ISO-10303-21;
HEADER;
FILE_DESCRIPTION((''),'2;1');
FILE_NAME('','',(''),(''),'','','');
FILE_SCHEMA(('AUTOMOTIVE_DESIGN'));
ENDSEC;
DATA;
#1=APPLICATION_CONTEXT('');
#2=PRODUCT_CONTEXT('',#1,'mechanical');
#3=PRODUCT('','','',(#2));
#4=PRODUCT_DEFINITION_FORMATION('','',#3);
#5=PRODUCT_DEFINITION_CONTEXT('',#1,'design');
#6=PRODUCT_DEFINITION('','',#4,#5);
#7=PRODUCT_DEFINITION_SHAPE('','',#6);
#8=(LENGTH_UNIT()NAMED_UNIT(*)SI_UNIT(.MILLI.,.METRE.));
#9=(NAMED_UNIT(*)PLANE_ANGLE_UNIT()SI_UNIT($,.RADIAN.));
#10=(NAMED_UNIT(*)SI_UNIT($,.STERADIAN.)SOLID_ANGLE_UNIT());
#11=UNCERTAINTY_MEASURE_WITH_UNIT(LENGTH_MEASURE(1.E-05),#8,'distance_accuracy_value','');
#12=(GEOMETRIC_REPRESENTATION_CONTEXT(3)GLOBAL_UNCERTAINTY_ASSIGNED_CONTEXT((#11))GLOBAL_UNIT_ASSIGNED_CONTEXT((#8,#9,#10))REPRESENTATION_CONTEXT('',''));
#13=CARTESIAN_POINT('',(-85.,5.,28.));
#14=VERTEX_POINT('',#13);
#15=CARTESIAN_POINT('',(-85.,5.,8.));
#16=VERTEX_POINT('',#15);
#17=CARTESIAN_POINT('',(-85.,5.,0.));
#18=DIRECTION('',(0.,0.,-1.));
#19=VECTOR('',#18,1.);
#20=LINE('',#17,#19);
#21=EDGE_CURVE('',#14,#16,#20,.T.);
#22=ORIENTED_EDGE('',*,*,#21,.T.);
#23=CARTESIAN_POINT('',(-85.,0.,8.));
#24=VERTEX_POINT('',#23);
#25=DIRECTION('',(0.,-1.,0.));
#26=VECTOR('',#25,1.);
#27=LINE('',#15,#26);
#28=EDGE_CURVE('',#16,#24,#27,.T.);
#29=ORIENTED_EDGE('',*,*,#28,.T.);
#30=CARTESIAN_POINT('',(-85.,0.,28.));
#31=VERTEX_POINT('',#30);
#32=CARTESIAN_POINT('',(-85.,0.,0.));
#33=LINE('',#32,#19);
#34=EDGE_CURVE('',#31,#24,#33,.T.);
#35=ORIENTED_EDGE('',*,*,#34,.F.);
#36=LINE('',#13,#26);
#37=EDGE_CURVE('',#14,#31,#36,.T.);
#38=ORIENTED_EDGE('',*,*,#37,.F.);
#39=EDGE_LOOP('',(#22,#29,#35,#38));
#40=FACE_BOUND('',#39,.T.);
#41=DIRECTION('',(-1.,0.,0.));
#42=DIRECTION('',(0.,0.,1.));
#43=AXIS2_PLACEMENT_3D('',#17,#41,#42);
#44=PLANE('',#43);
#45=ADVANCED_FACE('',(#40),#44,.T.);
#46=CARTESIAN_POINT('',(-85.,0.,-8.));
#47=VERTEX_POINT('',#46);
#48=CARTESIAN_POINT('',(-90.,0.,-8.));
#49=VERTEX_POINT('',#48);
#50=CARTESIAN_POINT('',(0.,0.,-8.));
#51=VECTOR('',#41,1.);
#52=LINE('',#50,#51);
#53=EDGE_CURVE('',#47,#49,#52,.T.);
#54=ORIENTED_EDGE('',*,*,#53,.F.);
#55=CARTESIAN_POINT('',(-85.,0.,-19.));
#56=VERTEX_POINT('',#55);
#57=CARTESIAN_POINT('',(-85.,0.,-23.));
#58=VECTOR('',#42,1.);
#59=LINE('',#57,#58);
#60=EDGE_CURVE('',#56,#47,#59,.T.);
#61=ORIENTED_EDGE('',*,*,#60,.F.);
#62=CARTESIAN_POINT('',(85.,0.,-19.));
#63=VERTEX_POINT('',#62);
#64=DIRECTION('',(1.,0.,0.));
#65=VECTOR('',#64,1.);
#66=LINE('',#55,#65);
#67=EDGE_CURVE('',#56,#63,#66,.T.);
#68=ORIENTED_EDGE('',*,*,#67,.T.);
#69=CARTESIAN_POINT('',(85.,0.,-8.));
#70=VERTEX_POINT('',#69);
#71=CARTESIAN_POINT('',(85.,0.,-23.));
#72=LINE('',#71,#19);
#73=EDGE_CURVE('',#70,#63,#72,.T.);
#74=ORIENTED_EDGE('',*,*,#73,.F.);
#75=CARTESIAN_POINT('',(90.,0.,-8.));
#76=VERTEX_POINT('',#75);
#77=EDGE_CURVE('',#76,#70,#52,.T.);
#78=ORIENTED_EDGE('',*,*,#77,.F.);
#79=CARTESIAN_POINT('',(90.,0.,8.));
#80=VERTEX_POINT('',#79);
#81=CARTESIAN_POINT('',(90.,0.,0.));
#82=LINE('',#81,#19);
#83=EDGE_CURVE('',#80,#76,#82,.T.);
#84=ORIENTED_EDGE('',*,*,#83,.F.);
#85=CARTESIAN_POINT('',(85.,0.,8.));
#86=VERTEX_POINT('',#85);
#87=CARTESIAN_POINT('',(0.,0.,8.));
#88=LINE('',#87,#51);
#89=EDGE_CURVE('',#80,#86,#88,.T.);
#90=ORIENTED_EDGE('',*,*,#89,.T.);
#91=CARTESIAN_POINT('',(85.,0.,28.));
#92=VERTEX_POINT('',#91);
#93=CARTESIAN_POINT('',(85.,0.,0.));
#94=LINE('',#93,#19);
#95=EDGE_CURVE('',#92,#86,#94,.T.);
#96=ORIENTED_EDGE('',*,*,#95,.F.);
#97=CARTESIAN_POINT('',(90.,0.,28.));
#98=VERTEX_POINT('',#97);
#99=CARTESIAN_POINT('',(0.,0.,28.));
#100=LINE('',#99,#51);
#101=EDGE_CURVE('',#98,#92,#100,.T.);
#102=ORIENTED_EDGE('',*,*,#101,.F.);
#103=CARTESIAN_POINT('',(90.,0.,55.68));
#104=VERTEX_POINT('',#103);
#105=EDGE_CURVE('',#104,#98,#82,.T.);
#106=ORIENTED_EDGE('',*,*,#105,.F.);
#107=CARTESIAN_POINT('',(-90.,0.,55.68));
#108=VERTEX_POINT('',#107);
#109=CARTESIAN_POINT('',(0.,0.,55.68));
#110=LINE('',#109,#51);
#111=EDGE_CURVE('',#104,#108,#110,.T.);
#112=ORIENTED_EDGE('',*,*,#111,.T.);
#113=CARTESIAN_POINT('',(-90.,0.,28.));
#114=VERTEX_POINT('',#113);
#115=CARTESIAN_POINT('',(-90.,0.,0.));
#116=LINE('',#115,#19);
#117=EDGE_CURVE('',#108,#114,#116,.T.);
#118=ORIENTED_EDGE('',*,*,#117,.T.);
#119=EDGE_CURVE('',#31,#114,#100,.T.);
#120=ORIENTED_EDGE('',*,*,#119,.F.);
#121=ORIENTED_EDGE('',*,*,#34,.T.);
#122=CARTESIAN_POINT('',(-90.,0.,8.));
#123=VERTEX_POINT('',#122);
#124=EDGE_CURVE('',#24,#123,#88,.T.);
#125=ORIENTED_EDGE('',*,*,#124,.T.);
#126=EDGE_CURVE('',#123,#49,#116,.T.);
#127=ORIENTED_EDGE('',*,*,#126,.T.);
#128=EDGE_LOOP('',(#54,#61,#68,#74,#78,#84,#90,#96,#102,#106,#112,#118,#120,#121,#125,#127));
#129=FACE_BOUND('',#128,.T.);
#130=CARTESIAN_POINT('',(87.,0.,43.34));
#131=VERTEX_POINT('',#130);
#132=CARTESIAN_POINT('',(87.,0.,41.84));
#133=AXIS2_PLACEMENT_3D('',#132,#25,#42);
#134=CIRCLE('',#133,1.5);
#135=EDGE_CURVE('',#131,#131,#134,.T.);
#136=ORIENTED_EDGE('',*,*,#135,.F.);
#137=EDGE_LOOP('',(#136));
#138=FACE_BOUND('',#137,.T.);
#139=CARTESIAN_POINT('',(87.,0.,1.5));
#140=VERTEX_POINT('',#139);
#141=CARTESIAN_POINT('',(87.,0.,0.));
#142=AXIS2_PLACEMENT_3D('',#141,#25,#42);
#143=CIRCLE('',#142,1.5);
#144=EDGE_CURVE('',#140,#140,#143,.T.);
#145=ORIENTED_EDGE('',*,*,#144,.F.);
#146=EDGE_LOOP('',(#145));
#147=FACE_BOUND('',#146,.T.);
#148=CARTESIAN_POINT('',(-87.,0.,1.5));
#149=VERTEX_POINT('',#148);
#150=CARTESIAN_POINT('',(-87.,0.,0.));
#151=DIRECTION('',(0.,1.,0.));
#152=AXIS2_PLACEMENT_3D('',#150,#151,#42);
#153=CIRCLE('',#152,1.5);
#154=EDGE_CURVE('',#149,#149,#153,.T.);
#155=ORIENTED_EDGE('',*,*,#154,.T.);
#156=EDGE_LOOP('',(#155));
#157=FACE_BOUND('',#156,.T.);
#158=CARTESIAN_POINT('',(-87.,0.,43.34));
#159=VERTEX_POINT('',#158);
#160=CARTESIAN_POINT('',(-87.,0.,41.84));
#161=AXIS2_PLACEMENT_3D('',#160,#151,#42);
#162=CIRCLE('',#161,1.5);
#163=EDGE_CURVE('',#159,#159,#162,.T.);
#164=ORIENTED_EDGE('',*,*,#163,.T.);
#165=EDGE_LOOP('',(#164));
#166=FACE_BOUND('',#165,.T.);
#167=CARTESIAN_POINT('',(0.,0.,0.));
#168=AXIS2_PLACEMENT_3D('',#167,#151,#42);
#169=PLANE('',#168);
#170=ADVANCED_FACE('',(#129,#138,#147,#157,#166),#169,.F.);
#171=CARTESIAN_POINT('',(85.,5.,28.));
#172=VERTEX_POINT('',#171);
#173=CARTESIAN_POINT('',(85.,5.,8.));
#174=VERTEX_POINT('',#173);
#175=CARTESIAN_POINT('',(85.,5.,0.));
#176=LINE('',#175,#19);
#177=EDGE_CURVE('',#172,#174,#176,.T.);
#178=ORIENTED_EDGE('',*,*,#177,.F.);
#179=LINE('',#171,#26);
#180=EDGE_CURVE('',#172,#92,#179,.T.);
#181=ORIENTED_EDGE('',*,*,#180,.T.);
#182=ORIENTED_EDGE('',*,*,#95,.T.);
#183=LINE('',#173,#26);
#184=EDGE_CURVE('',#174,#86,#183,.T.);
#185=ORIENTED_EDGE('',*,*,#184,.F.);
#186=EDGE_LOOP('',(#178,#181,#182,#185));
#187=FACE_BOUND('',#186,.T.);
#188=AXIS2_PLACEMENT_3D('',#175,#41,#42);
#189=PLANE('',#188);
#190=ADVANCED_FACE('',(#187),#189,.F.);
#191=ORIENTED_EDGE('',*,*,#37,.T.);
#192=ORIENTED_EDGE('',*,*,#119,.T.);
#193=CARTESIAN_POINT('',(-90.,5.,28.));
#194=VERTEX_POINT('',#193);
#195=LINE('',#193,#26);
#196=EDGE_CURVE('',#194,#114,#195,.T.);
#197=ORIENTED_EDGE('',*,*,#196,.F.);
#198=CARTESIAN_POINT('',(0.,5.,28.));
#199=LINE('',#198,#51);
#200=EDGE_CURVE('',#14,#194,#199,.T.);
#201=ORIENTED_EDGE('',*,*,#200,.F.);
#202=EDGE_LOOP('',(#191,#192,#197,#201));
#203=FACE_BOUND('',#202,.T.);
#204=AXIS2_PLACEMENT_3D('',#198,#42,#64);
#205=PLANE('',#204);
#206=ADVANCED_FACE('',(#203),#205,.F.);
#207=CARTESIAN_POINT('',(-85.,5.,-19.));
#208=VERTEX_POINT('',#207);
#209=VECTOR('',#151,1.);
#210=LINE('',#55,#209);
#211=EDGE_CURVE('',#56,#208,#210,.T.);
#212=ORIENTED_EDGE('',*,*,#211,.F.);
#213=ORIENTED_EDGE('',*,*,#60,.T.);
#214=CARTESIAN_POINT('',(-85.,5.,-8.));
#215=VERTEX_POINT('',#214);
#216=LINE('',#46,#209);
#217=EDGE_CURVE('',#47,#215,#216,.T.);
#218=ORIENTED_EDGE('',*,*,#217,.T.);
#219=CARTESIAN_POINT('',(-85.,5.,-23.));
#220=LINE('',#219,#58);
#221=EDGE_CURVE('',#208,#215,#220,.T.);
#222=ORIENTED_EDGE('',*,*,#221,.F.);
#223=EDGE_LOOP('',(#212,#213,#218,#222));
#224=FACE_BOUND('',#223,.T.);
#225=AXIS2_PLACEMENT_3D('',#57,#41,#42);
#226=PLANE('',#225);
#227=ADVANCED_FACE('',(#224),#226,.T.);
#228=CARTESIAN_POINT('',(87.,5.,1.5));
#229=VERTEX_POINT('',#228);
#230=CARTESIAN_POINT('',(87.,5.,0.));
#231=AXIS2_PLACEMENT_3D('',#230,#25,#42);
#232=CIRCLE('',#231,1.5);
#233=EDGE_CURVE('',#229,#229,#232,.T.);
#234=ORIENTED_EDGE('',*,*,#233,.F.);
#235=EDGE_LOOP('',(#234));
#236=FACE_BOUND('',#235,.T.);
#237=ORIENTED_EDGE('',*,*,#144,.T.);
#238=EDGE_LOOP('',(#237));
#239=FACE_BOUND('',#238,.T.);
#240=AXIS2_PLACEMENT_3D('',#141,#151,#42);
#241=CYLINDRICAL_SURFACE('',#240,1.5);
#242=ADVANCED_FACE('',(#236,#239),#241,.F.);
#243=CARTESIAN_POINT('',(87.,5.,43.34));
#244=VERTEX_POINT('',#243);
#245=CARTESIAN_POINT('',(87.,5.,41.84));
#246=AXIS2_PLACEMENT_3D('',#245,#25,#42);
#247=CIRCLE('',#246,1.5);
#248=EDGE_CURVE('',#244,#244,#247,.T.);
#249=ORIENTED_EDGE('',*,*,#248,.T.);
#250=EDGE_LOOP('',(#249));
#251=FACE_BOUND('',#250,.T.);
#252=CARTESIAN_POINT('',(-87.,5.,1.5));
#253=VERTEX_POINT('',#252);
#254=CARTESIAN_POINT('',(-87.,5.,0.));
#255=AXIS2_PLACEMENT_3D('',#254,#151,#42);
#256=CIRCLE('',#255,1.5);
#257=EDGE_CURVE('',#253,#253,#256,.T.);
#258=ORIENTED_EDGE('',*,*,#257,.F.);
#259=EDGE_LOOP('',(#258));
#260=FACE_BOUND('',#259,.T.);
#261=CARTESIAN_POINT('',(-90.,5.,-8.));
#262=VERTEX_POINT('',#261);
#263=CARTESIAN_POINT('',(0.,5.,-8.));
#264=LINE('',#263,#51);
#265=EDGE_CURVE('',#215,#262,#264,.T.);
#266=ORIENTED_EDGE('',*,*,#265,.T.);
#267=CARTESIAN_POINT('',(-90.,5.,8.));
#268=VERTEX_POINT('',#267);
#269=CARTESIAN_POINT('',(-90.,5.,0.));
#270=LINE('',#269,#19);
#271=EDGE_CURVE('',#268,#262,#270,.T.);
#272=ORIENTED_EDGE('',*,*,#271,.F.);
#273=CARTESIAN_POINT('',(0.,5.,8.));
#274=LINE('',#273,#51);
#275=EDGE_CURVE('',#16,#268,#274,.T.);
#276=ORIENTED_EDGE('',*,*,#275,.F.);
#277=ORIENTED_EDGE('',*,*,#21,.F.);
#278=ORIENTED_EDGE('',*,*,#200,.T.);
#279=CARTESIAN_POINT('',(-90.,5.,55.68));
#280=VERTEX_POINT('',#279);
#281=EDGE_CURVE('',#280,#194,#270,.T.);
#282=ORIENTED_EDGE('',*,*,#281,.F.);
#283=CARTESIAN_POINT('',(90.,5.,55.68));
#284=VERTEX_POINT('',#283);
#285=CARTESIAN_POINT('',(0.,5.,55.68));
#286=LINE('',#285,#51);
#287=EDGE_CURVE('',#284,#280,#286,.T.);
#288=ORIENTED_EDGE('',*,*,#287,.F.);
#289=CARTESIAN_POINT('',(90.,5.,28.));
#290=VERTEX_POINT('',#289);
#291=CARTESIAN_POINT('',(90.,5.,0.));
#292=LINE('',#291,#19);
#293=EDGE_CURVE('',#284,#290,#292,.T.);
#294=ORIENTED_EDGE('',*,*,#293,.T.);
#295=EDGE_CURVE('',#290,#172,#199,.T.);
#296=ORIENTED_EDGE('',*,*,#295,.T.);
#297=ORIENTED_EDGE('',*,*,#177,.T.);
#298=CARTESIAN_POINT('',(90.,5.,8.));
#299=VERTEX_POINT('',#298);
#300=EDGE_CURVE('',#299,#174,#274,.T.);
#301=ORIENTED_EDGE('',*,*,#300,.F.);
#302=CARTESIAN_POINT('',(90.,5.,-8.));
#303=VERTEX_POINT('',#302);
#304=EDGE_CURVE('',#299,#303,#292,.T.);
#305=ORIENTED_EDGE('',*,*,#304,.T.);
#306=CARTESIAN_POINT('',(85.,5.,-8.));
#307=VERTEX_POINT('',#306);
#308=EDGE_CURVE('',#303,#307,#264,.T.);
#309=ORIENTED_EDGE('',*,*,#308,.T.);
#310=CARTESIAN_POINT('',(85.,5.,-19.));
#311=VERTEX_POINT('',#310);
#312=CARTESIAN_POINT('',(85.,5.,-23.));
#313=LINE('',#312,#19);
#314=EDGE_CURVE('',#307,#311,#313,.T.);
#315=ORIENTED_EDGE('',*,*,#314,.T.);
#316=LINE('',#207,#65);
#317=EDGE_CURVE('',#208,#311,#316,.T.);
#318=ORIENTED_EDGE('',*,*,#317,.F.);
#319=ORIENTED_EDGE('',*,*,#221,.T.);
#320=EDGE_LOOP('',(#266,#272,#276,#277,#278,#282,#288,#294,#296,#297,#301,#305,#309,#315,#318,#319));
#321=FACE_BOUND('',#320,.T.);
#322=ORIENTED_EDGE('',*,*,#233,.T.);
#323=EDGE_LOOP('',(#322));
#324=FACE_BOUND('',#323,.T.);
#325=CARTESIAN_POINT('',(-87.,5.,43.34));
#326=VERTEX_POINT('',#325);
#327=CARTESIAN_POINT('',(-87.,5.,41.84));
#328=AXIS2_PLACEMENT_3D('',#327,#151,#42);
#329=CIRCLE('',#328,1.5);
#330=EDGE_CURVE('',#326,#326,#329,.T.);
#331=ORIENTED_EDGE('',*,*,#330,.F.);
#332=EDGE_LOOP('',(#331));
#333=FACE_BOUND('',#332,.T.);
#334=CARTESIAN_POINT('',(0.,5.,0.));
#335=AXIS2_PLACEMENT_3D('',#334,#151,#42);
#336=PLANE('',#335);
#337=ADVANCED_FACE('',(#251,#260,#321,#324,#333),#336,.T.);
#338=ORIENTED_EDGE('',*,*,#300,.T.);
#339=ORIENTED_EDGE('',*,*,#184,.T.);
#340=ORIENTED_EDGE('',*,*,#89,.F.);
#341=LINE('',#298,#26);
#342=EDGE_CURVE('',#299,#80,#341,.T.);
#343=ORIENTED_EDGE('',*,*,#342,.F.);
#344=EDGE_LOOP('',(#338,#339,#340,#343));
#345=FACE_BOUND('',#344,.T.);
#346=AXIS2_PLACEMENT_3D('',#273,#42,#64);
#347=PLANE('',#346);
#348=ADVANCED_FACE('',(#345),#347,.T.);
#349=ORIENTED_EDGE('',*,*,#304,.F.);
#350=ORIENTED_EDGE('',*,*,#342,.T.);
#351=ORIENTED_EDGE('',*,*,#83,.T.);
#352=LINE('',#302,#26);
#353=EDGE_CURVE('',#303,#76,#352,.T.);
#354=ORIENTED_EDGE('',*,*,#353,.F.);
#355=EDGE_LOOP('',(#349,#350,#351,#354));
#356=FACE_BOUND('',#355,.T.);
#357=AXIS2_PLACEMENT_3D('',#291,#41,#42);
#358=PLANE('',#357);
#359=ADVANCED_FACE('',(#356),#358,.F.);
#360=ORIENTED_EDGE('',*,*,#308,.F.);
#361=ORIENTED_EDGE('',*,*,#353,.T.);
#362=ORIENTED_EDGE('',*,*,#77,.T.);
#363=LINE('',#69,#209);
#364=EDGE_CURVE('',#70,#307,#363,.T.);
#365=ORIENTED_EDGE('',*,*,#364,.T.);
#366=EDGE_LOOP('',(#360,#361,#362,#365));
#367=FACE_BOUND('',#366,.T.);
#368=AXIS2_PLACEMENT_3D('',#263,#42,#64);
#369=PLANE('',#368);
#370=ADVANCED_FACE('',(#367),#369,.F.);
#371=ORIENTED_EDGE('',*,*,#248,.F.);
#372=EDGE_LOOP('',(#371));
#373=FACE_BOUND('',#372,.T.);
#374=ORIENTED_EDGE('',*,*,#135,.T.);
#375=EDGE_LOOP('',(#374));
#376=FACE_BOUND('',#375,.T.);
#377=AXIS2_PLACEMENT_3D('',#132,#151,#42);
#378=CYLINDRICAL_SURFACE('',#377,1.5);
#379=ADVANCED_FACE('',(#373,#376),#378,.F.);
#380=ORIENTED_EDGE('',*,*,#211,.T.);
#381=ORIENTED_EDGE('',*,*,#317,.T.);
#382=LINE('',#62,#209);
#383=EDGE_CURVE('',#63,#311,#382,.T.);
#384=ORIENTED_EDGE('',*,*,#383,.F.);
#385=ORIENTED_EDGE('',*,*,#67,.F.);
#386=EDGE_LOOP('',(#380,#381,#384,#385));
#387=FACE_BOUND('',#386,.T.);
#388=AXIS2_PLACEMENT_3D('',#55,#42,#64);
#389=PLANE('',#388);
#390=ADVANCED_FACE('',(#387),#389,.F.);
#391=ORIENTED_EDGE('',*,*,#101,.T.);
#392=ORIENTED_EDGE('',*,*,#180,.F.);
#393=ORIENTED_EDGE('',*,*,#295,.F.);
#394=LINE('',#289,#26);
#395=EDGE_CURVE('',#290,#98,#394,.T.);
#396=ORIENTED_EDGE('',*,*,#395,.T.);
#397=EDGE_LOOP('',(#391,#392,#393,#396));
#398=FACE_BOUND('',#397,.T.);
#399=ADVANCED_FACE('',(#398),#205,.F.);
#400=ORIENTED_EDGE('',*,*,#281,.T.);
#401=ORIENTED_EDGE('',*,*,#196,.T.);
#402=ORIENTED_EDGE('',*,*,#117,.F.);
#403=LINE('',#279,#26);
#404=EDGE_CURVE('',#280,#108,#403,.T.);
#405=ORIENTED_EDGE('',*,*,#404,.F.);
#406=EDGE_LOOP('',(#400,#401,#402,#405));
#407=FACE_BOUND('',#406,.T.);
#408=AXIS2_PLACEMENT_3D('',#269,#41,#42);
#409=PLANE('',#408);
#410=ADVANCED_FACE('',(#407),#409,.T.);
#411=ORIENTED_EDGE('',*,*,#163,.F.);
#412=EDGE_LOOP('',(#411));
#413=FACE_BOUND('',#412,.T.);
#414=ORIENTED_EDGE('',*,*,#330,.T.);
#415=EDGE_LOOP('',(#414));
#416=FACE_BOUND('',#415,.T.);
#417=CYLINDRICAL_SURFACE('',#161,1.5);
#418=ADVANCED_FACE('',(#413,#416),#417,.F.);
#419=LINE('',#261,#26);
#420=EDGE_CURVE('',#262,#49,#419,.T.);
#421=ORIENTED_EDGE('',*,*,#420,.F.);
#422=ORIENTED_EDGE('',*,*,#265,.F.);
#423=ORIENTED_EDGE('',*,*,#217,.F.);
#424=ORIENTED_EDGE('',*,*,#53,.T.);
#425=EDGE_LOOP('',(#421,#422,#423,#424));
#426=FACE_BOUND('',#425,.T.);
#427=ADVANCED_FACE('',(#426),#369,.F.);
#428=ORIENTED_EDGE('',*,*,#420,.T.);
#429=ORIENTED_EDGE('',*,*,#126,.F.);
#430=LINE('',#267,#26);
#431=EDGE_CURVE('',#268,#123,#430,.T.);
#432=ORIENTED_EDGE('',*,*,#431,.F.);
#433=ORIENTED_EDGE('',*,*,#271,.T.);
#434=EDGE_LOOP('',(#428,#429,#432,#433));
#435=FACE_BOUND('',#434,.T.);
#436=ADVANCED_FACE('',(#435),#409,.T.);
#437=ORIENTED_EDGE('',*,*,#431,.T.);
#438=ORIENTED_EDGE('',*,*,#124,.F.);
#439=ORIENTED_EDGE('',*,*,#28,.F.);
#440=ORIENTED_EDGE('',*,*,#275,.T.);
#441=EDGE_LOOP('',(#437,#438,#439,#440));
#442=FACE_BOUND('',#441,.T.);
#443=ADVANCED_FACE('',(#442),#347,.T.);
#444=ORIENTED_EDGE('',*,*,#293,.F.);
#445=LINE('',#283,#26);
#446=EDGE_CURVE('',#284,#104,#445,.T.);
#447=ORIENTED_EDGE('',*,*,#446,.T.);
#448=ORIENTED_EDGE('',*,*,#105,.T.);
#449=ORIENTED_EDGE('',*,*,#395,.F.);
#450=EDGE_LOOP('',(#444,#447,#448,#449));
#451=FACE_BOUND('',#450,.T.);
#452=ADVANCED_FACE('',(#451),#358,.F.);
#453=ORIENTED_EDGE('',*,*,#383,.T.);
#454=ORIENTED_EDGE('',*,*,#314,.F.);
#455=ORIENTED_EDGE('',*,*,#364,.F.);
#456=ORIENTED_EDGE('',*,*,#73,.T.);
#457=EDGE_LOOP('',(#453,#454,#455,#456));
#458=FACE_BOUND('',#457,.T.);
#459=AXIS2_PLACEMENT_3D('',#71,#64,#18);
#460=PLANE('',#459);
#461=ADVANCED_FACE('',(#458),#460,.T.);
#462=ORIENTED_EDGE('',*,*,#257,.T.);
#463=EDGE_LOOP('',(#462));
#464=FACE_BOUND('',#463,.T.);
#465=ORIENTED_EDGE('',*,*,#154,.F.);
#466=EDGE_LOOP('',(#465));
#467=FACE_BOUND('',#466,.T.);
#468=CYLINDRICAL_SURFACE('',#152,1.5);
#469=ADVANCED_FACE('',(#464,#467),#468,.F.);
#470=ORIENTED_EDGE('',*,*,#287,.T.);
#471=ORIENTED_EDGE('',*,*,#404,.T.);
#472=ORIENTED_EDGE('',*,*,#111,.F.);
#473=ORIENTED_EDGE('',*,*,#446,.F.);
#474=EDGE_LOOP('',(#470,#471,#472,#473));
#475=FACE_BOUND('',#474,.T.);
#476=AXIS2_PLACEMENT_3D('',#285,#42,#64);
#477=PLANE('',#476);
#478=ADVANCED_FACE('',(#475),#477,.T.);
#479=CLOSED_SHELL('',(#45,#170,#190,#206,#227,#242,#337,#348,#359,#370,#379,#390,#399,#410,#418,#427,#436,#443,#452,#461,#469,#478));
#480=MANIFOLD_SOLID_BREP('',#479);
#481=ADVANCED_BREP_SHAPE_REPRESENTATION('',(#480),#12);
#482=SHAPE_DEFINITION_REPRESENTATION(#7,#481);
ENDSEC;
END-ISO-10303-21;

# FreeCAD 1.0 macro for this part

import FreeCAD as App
import Part
import Sketcher
Q = App.Units.Quantity


def add_polygon(sketch, points):
    """Adds a closed chain of lines whose ends are joined by coincident constraints."""
    first, n = sketch.GeometryCount, len(points)
    for a, b in zip(points, points[1:] + points[:1]):
        sketch.addGeometry(Part.LineSegment(App.Vector(*a, 0), App.Vector(*b, 0)), False)
    for i in range(n):
        sketch.addConstraint(Sketcher.Constraint("Coincident", first + i, 2, first + (i + 1) % n, 1))

doc = App.newDocument("Part")
body = doc.addObject("PartDesign::Body", "Body")

# Sketch on XZ plane
sketch1 = body.newObject("Sketcher::SketchObject", "Sketch")
sketch1.AttachmentSupport = (doc.getObject("XZ_Plane"), [""])
sketch1.MapMode = "FlatFace"
add_polygon(sketch1, [(90, 28), (85, 28), (85, 8), (90, 8), (90, -8), (-90, -8), (-90, 8), (-85, 8), (-85, 28), (-90, 28), (-90, 55.68), (90, 55.68)])  # lines 0-11
sketch1.addConstraint([
    Sketcher.Constraint("Horizontal", 0),
    Sketcher.Constraint("Vertical", 1),
    Sketcher.Constraint("Horizontal", 2),
    Sketcher.Constraint("Vertical", 3),
    Sketcher.Constraint("Horizontal", 4),
    Sketcher.Constraint("Vertical", 5),
    Sketcher.Constraint("Horizontal", 6),
    Sketcher.Constraint("Vertical", 7),
    Sketcher.Constraint("Horizontal", 8),
    Sketcher.Constraint("Vertical", 9),
    Sketcher.Constraint("Horizontal", 10),
    Sketcher.Constraint("Vertical", 11),
    Sketcher.Constraint("Symmetric", 2, 2, 4, 2, -1, 1),
    Sketcher.Constraint("Symmetric", 1, 2, 6, 2, -2),
    Sketcher.Constraint("Symmetric", 8, 2, 11, 2, -2),
    Sketcher.Constraint("Vertical", 5, 2, 8, 2),
    Sketcher.Constraint("DistanceX", 0, 2, 0, 1, Q("5 mm")),
    Sketcher.Constraint("DistanceX", 4, 2, 4, 1, Q("180 mm")),
    Sketcher.Constraint("DistanceY", 1, 2, 1, 1, Q("20 mm")),
    Sketcher.Constraint("DistanceY", 3, 2, 3, 1, Q("16 mm")),
    Sketcher.Constraint("DistanceY", 9, 1, 9, 2, Q("27.68 mm")),
])
pad1 = body.newObject("PartDesign::Pad", "Pad")
pad1.Profile = sketch1
pad1.Length = 5
pad1.Reversed = True

# Sketch on XZ plane
sketch2 = body.newObject("Sketcher::SketchObject", "Sketch001")
sketch2.AttachmentSupport = (doc.getObject("XZ_Plane"), [""])
sketch2.MapMode = "FlatFace"
sketch2.AttachmentOffset = App.Placement(App.Vector(0, 0, -5), App.Rotation())
sketch2.addGeometry([
    Part.Circle(App.Vector(-87, 0, 0), App.Vector(0, 0, 1), 1.5),
    Part.Circle(App.Vector(-87, 41.84, 0), App.Vector(0, 0, 1), 1.5),
], False)
sketch2.addConstraint([
    Sketcher.Constraint("Equal", 0, 1),
    Sketcher.Constraint("PointOnObject", 0, 3, -1),
    Sketcher.Constraint("Vertical", 0, 3, 1, 3),
    Sketcher.Constraint("Diameter", 0, Q("3 mm")),
    Sketcher.Constraint("DistanceX", 0, 3, -1, 1, Q("87 mm")),
    Sketcher.Constraint("DistanceY", -1, 1, 1, 3, Q("41.84 mm")),
])
pocket1 = body.newObject("PartDesign::Pocket", "Pocket")
pocket1.Profile = sketch2
pocket1.Type = "ThroughAll"
pocket1.Reversed = True
doc.recompute()

mirrored = body.newObject("PartDesign::Mirrored", "Mirrored")
mirrored.Originals = [pocket1]
mirrored.MirrorPlane = (doc.getObject("YZ_Plane"), [""])
body.Tip = mirrored

# Sketch on XZ plane
sketch3 = body.newObject("Sketcher::SketchObject", "Sketch002")
sketch3.AttachmentSupport = (doc.getObject("XZ_Plane"), [""])
sketch3.MapMode = "FlatFace"
sketch3.AttachmentOffset = App.Placement(App.Vector(0, 0, -5), App.Rotation())
add_polygon(sketch3, [(-85, -23), (-85, -8), (85, -8), (85, -23)])  # lines 0-3
sketch3.addConstraint([
    Sketcher.Constraint("Vertical", 0),
    Sketcher.Constraint("Horizontal", 1),
    Sketcher.Constraint("Vertical", 2),
    Sketcher.Constraint("Horizontal", 3),
    Sketcher.Constraint("DistanceX", 1, 1, 1, 2, Q("170 mm")),
    Sketcher.Constraint("DistanceY", 0, 1, 0, 2, Q("15 mm")),
    Sketcher.Constraint("DistanceX", 0, 2, -1, 1, Q("85 mm")),
    Sketcher.Constraint("DistanceY", 0, 2, -1, 1, Q("8 mm")),
])
pad2 = body.newObject("PartDesign::Pad", "Pad001")
pad2.Profile = sketch3
pad2.Length = 5

# Sketch on XZ plane
sketch4 = body.newObject("Sketcher::SketchObject", "Sketch003")
sketch4.AttachmentSupport = (doc.getObject("XZ_Plane"), [""])
sketch4.MapMode = "FlatFace"
sketch4.AttachmentOffset = App.Placement(App.Vector(0, 0, -5), App.Rotation())
add_polygon(sketch4, [(-85, -23), (-85, -19), (85, -19), (85, -23)])  # lines 0-3
sketch4.addConstraint([
    Sketcher.Constraint("Vertical", 0),
    Sketcher.Constraint("Horizontal", 1),
    Sketcher.Constraint("Vertical", 2),
    Sketcher.Constraint("Horizontal", 3),
    Sketcher.Constraint("DistanceX", 1, 1, 1, 2, Q("170 mm")),
    Sketcher.Constraint("DistanceY", 0, 1, 0, 2, Q("4 mm")),
    Sketcher.Constraint("DistanceX", 0, 2, -1, 1, Q("85 mm")),
    Sketcher.Constraint("DistanceY", 0, 2, -1, 1, Q("19 mm")),
])
pocket2 = body.newObject("PartDesign::Pocket", "Pocket001")
pocket2.Profile = sketch4
pocket2.Type = "ThroughAll"
pocket2.Reversed = True

doc.recompute()
